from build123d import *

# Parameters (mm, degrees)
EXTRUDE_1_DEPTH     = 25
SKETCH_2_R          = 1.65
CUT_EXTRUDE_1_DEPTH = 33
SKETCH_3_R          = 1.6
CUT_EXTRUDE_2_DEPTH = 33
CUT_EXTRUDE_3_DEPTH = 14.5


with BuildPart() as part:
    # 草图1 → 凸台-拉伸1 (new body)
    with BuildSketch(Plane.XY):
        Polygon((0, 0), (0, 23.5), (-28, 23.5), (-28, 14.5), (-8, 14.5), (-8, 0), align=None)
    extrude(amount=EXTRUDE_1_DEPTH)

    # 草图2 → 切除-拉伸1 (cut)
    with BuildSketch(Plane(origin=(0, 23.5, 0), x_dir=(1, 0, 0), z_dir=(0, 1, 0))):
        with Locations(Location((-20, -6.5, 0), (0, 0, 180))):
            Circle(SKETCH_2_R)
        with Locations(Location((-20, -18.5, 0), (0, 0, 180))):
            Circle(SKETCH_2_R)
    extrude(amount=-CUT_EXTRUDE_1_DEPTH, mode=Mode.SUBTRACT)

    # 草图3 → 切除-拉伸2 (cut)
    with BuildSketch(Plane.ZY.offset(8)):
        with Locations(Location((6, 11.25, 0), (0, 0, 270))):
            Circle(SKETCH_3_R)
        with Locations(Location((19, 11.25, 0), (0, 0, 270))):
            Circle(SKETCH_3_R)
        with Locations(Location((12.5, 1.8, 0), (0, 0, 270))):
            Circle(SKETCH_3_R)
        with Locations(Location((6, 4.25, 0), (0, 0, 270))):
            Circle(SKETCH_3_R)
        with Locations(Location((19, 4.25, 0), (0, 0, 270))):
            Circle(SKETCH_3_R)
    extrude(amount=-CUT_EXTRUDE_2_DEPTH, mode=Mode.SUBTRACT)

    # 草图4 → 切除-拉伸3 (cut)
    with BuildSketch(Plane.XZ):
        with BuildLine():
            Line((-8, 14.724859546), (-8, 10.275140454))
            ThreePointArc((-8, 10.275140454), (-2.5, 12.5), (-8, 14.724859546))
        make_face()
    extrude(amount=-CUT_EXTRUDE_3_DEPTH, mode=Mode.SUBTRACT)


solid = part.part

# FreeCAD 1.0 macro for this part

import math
import FreeCAD as App
import Part
import Sketcher


def add_polygon(sketch, points):
    """Adds a closed chain of lines whose ends are joined by coincident constraints."""
    first, n = sketch.GeometryCount, len(points)
    for a, b in zip(points, points[1:] + points[:1]):
        sketch.addGeometry(Part.LineSegment(App.Vector(*a, 0), App.Vector(*b, 0)), False)
    for i in range(n):
        sketch.addConstraint(Sketcher.Constraint("Coincident", first + i, 2, first + (i + 1) % n, 1))

doc = App.newDocument("Part")
body = doc.addObject("PartDesign::Body", "Body")

sketch1 = body.newObject("Sketcher::SketchObject", "Sketch")
sketch1.AttachmentSupport = (doc.getObject("XY_Plane"), [""])
sketch1.MapMode = "FlatFace"
add_polygon(sketch1, [(0, 0), (0, 24), (-28, 24), (-28, 14), (-8, 14), (-8, 0)])
sketch1.addConstraint([
    Sketcher.Constraint("Vertical", 0),
    Sketcher.Constraint("Horizontal", 1),
    Sketcher.Constraint("Vertical", 2),
    Sketcher.Constraint("Horizontal", 3),
    Sketcher.Constraint("Vertical", 4),
    Sketcher.Constraint("Horizontal", 5),
    Sketcher.Constraint("Coincident", 5, 2, -1, 1),
    Sketcher.Constraint("DistanceX", 1, 2, 1, 1, 28.0),
    Sketcher.Constraint("DistanceX", 3, 1, 3, 2, 20.0),
    Sketcher.Constraint("DistanceY", 2, 2, 2, 1, 9.0),
    Sketcher.Constraint("DistanceY", 0, 1, 0, 2, 23.5),
])
pad1 = body.newObject("PartDesign::Pad", "Pad")
pad1.Profile = sketch1
pad1.Length = 25

sketch2 = body.newObject("Sketcher::SketchObject", "Sketch001")
sketch2.AttachmentSupport = (doc.getObject("XZ_Plane"), [""])
sketch2.MapMode = "FlatFace"
sketch2.AttachmentOffset = App.Placement(App.Vector(0, 0, -23.5), App.Rotation())
sketch2.addGeometry([
    Part.Circle(App.Vector(-20, 6.5, 0), App.Vector(0, 0, 1), 1.6),
    Part.Circle(App.Vector(-20, 18.5, 0), App.Vector(0, 0, 1), 1.6),
], False)
sketch2.addConstraint([
    Sketcher.Constraint("Equal", 0, 1),
    Sketcher.Constraint("Vertical", 0, 3, 1, 3),
    Sketcher.Constraint("Diameter", 0, 3.3),
    Sketcher.Constraint("DistanceX", 0, 3, -1, 1, 20.0),
    Sketcher.Constraint("DistanceY", 0, 3, 1, 3, 12.0),
    Sketcher.Constraint("DistanceY", -1, 1, 0, 3, 6.5),
])
pocket1 = body.newObject("PartDesign::Pocket", "Pocket")
pocket1.Profile = sketch2
pocket1.Length = 33
pocket1.Reversed = True

sketch3 = body.newObject("Sketcher::SketchObject", "Sketch002")
sketch3.AttachmentSupport = (doc.getObject("YZ_Plane"), [""])
sketch3.MapMode = "FlatFace"
sketch3.AttachmentOffset = App.Placement(App.Vector(0, 0, -8), App.Rotation())
sketch3.addGeometry([
    Part.Circle(App.Vector(11.2, 6, 0), App.Vector(0, 0, 1), 1.6),
    Part.Circle(App.Vector(11.2, 19, 0), App.Vector(0, 0, 1), 1.6),
    Part.Circle(App.Vector(1.8, 12.5, 0), App.Vector(0, 0, 1), 1.6),
    Part.Circle(App.Vector(4.2, 6, 0), App.Vector(0, 0, 1), 1.6),
    Part.Circle(App.Vector(4.2, 19, 0), App.Vector(0, 0, 1), 1.6),
], False)
sketch3.addConstraint([
    Sketcher.Constraint("Equal", 0, 1),
    Sketcher.Constraint("Equal", 1, 2),
    Sketcher.Constraint("Equal", 2, 3),
    Sketcher.Constraint("Equal", 3, 4),
    Sketcher.Constraint("Horizontal", 0, 3, 3, 3),
    Sketcher.Constraint("Horizontal", 1, 3, 4, 3),
    Sketcher.Constraint("Vertical", 0, 3, 1, 3),
    Sketcher.Constraint("Vertical", 3, 3, 4, 3),
    Sketcher.Constraint("Diameter", 0, 3.2),
    Sketcher.Constraint("DistanceY", -1, 1, 0, 3, 6.0),
    Sketcher.Constraint("DistanceY", -1, 1, 1, 3, 19.0),
    Sketcher.Constraint("DistanceX", 3, 3, 0, 3, 7.0),
    Sketcher.Constraint("DistanceX", -1, 1, 2, 3, 1.8),
    Sketcher.Constraint("DistanceY", -1, 1, 2, 3, 12.5),
    Sketcher.Constraint("DistanceX", -1, 1, 0, 3, 11.25),
])
pocket2 = body.newObject("PartDesign::Pocket", "Pocket001")
pocket2.Profile = sketch3
pocket2.Length = 33
pocket2.Reversed = True

sketch4 = body.newObject("Sketcher::SketchObject", "Sketch003")
sketch4.AttachmentSupport = (doc.getObject("XZ_Plane"), [""])
sketch4.MapMode = "FlatFace"
sketch4.addGeometry([
    Part.LineSegment(App.Vector(-8, 14.7, 0), App.Vector(-8, 10.3, 0)),
    Part.ArcOfCircle(Part.Circle(App.Vector(-5.7, 12.5, 0), App.Vector(0, 0, 1), 3.2), math.radians(-136), math.radians(136)),
], False)
sketch4.addConstraint([
    Sketcher.Constraint("Coincident", 0, 1, 1, 2),
    Sketcher.Constraint("Coincident", 1, 1, 0, 2),
    Sketcher.Constraint("Vertical", 0),
    Sketcher.Constraint("Radius", 1, 3.2),
    Sketcher.Constraint("DistanceX", 0, 1, -1, 1, 8.0),
    Sketcher.Constraint("DistanceX", 1, 3, -1, 1, 5.7),
    Sketcher.Constraint("DistanceY", -1, 1, 1, 3, 12.5),
])
pocket3 = body.newObject("PartDesign::Pocket", "Pocket002")
pocket3.Profile = sketch4
pocket3.Length = 14.5

doc.recompute()
